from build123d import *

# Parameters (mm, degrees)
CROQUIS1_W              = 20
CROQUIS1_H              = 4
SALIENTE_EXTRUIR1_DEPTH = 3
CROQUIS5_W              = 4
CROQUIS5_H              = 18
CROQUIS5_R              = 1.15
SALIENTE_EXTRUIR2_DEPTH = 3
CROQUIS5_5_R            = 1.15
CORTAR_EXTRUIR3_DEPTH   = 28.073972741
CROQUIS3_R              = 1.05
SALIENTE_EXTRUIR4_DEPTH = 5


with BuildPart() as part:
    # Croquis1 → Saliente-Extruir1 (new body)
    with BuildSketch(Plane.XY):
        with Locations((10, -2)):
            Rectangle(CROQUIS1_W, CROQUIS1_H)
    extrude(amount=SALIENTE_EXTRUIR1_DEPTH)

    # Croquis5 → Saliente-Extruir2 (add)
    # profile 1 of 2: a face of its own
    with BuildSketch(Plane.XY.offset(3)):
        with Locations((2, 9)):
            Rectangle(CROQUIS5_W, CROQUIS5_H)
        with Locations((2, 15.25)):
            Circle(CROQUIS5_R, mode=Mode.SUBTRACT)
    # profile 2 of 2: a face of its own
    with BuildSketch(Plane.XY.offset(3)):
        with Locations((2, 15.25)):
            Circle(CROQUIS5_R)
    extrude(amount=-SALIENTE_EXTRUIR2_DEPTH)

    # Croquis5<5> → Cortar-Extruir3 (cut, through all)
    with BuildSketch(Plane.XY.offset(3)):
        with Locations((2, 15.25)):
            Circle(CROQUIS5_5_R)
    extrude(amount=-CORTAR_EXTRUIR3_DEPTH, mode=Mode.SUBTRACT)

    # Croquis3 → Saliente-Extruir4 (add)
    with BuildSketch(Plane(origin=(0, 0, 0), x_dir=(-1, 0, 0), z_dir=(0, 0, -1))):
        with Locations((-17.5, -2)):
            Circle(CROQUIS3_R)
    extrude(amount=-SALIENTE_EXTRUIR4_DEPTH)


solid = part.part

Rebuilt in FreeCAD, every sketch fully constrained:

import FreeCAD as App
import Part
import Sketcher
Q = App.Units.Quantity

doc = App.newDocument("Part")
body = doc.addObject("PartDesign::Body", "Body")

sketch1 = body.newObject("Sketcher::SketchObject", "Sketch")
sketch1.AttachmentSupport = (doc.getObject("XY_Plane"), [""])
sketch1.MapMode = "FlatFace"
sketch1.addGeometry([
    Part.LineSegment(App.Vector(0, 0, 0), App.Vector(0, -4, 0)),
    Part.LineSegment(App.Vector(0, -4, 0), App.Vector(20, -4, 0)),
    Part.LineSegment(App.Vector(20, -4, 0), App.Vector(20, 0, 0)),
    Part.LineSegment(App.Vector(20, 0, 0), App.Vector(0, 0, 0)),
], False)
sketch1.addConstraint([
    Sketcher.Constraint("Coincident", 0, 2, 1, 1),
    Sketcher.Constraint("Coincident", 1, 2, 2, 1),
    Sketcher.Constraint("Coincident", 2, 2, 3, 1),
    Sketcher.Constraint("Coincident", 3, 2, 0, 1),
    Sketcher.Constraint("Vertical", 0),
    Sketcher.Constraint("Horizontal", 1),
    Sketcher.Constraint("Vertical", 2),
    Sketcher.Constraint("Horizontal", 3),
    Sketcher.Constraint("Coincident", 3, 2, -1, 1),
    Sketcher.Constraint("DistanceX", 1, 1, 1, 2, Q("20 mm")),
    Sketcher.Constraint("DistanceY", 0, 2, 0, 1, Q("4 mm")),
])
pad1 = body.newObject("PartDesign::Pad", "Pad")
pad1.Profile = sketch1
pad1.Length = 3

sketch2 = body.newObject("Sketcher::SketchObject", "Sketch001")
sketch2.AttachmentSupport = (doc.getObject("XY_Plane"), [""])
sketch2.MapMode = "FlatFace"
sketch2.AttachmentOffset = App.Placement(App.Vector(0, 0, 3), App.Rotation())
sketch2.addGeometry([
    Part.LineSegment(App.Vector(0, 18, 0), App.Vector(0, 0, 0)),
    Part.LineSegment(App.Vector(0, 0, 0), App.Vector(4, 0, 0)),
    Part.LineSegment(App.Vector(4, 0, 0), App.Vector(4, 18, 0)),
    Part.LineSegment(App.Vector(4, 18, 0), App.Vector(0, 18, 0)),
], False)
sketch2.addConstraint([
    Sketcher.Constraint("Coincident", 0, 2, 1, 1),
    Sketcher.Constraint("Coincident", 1, 2, 2, 1),
    Sketcher.Constraint("Coincident", 2, 2, 3, 1),
    Sketcher.Constraint("Coincident", 3, 2, 0, 1),
    Sketcher.Constraint("Vertical", 0),
    Sketcher.Constraint("Horizontal", 1),
    Sketcher.Constraint("Vertical", 2),
    Sketcher.Constraint("Horizontal", 3),
    Sketcher.Constraint("Coincident", 0, 2, -1, 1),
    Sketcher.Constraint("DistanceX", 1, 1, 1, 2, Q("4 mm")),
    Sketcher.Constraint("DistanceY", 0, 2, 0, 1, Q("18 mm")),
])
pad2 = body.newObject("PartDesign::Pad", "Pad001")
pad2.Profile = sketch2
pad2.Length = 3
pad2.Reversed = True

sketch3 = body.newObject("Sketcher::SketchObject", "Sketch002")
sketch3.AttachmentSupport = (doc.getObject("XY_Plane"), [""])
sketch3.MapMode = "FlatFace"
sketch3.AttachmentOffset = App.Placement(App.Vector(0, 0, 3), App.Rotation())
sketch3.addGeometry(Part.Circle(App.Vector(2, 15.2, 0), App.Vector(0, 0, 1), 1.1), False)
sketch3.addConstraint([
    Sketcher.Constraint("Diameter", 0, Q("2.3 mm")),
    Sketcher.Constraint("DistanceX", -1, 1, 0, 3, Q("2 mm")),
    Sketcher.Constraint("DistanceY", -1, 1, 0, 3, Q("15.25 mm")),
])
pocket1 = body.newObject("PartDesign::Pocket", "Pocket")
pocket1.Profile = sketch3
pocket1.Type = "ThroughAll"

sketch4 = body.newObject("Sketcher::SketchObject", "Sketch003")
sketch4.AttachmentSupport = (doc.getObject("XY_Plane"), [""])
sketch4.MapMode = "FlatFace"
sketch4.addGeometry(Part.Circle(App.Vector(17.5, -2, 0), App.Vector(0, 0, 1), 1.1), False)
sketch4.addConstraint([
    Sketcher.Constraint("Diameter", 0, Q("2.1 mm")),
    Sketcher.Constraint("DistanceY", 0, 3, -1, 1, Q("2 mm")),
    Sketcher.Constraint("DistanceX", -1, 1, 0, 3, Q("17.5 mm")),
])
pad3 = body.newObject("PartDesign::Pad", "Pad002")
pad3.Profile = sketch4
pad3.Length = 5

doc.recompute()
